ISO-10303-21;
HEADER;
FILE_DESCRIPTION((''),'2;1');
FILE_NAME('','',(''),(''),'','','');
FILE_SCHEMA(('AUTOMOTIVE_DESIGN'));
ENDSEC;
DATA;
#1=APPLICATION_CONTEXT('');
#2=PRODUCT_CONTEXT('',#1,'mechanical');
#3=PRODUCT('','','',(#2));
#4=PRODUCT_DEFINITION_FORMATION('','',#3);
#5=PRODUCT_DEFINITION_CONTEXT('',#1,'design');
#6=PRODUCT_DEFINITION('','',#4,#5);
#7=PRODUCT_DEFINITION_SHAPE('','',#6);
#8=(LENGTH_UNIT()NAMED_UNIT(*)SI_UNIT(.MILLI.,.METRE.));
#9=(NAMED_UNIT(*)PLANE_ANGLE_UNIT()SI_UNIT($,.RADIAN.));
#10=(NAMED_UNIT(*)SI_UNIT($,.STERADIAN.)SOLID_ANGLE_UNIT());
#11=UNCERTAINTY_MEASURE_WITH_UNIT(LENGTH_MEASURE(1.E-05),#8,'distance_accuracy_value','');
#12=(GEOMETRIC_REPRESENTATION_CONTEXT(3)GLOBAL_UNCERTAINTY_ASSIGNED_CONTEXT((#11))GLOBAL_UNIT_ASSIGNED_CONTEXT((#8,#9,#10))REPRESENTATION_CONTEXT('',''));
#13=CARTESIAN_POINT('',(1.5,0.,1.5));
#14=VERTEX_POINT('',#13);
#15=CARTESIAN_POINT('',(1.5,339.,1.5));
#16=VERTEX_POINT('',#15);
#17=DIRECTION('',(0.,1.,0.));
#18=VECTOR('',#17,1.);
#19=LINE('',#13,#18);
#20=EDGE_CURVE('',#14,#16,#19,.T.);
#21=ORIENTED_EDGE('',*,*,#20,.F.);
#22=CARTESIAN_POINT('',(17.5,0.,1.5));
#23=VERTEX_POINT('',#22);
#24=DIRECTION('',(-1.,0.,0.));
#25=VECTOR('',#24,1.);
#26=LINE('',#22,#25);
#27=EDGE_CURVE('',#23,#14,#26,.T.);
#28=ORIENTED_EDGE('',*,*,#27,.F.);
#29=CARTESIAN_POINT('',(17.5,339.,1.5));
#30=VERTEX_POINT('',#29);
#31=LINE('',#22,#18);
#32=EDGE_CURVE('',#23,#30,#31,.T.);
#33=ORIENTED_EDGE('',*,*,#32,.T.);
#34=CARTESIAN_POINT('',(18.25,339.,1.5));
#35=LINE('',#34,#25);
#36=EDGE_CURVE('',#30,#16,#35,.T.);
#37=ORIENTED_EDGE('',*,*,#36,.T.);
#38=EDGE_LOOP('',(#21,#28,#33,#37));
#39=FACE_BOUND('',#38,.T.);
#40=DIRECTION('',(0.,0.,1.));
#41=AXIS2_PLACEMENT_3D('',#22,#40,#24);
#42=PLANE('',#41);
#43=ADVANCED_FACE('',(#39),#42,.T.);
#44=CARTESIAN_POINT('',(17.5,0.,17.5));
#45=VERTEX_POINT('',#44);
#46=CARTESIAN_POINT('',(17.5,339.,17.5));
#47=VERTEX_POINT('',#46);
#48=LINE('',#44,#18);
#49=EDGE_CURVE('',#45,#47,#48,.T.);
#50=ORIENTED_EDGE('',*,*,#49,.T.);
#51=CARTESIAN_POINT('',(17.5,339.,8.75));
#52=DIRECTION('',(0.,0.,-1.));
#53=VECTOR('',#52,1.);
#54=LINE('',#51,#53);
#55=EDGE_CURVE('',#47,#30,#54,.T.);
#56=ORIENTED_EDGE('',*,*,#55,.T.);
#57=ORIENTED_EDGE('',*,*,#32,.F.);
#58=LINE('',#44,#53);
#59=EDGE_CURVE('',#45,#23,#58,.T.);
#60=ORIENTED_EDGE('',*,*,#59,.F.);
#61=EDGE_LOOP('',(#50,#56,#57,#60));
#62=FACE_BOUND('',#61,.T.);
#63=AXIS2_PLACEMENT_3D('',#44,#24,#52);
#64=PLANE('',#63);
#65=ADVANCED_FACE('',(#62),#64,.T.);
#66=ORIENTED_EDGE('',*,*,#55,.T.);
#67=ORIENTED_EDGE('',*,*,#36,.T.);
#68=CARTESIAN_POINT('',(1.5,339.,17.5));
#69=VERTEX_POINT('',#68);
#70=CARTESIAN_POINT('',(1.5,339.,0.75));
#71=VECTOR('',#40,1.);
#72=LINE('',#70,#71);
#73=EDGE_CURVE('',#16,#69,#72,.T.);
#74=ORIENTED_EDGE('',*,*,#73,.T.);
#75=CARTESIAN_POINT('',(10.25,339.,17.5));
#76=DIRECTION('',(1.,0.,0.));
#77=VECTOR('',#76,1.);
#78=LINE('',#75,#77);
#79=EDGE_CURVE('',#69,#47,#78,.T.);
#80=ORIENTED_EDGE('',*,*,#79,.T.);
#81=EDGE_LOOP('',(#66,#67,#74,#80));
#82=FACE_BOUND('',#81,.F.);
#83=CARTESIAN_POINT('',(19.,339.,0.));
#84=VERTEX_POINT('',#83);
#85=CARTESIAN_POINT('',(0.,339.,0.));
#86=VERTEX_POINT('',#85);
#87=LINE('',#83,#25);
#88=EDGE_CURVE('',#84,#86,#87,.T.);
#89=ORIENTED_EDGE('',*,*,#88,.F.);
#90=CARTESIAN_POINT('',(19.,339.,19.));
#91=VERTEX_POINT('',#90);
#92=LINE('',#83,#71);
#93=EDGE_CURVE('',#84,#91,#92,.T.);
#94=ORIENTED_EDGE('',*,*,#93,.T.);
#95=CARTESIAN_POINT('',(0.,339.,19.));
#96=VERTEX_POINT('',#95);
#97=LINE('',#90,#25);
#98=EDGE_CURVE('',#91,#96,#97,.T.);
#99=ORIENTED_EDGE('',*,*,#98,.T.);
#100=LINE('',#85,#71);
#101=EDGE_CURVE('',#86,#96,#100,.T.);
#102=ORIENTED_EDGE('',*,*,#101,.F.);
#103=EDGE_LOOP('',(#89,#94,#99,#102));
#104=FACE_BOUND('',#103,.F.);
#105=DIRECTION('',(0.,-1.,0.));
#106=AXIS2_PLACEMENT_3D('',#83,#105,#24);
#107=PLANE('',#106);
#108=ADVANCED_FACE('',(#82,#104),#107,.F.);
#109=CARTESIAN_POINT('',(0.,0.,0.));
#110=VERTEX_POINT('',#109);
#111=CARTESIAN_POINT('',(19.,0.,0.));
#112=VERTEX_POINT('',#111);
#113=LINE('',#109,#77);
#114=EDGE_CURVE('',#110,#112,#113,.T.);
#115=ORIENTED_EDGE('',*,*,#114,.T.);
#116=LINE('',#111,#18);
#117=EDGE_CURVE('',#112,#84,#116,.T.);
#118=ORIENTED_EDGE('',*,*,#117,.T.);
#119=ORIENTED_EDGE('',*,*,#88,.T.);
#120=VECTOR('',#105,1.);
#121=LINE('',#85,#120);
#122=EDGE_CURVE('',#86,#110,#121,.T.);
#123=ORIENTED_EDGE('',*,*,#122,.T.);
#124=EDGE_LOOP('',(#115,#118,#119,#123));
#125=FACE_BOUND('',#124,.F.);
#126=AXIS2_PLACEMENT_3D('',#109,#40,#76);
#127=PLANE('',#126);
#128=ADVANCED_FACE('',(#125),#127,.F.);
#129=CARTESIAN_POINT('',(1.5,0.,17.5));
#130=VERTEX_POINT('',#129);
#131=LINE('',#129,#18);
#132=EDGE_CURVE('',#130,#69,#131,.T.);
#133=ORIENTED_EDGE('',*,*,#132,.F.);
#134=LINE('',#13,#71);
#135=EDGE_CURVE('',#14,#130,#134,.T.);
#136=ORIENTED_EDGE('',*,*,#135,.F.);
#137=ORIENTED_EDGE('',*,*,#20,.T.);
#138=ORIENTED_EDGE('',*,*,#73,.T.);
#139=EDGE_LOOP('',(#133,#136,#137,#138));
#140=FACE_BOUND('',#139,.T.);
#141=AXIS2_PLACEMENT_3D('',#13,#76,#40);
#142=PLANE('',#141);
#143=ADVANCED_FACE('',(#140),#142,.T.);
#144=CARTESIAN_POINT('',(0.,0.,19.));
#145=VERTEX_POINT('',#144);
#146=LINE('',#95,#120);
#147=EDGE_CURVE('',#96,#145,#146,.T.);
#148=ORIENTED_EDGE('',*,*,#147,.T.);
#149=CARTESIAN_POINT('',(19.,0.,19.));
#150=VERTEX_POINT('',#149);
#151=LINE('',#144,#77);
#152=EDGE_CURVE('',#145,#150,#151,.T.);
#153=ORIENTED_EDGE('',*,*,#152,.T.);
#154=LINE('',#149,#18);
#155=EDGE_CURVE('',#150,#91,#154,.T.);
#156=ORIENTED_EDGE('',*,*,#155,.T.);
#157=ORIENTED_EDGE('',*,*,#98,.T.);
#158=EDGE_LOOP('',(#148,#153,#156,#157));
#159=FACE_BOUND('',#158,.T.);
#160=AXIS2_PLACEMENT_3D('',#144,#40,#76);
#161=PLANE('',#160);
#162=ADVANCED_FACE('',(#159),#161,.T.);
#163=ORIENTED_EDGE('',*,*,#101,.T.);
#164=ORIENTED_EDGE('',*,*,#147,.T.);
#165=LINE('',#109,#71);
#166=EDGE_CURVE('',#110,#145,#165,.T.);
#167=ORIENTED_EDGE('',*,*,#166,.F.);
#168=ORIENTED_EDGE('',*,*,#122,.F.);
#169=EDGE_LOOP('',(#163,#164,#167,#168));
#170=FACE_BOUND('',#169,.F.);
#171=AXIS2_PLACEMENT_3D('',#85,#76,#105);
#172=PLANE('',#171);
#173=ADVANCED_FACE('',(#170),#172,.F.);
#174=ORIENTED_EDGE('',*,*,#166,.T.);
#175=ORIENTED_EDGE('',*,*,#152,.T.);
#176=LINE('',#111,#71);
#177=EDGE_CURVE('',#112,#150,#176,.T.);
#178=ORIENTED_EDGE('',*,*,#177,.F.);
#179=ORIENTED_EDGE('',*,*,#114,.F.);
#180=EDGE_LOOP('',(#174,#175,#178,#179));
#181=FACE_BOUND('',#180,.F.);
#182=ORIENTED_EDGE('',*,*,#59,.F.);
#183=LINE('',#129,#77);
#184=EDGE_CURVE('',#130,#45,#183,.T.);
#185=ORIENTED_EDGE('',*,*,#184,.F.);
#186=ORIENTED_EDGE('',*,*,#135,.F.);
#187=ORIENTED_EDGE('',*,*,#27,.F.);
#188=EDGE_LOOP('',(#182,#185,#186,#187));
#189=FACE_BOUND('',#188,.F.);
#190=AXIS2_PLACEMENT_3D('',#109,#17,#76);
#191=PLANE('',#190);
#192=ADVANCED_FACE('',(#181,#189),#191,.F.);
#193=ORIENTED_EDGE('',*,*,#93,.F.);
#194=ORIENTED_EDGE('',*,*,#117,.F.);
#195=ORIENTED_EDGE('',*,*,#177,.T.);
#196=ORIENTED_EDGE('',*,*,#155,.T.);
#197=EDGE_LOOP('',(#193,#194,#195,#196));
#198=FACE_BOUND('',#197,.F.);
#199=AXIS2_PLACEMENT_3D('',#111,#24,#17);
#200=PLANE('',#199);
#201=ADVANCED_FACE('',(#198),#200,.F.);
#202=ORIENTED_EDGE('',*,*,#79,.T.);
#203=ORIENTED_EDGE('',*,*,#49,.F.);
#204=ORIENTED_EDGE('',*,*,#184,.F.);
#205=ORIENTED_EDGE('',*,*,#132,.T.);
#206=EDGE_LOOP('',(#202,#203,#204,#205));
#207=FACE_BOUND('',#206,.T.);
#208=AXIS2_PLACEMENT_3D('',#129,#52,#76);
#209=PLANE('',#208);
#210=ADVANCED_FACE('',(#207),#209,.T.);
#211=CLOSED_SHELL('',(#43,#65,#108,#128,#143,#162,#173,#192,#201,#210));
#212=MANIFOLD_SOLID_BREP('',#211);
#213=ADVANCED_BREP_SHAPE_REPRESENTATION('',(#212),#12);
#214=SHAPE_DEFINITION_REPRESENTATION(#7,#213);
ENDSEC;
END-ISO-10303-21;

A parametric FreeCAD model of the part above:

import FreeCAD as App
import Part
import Sketcher

V = App.Vector


def add_polygon(sketch, points):
    """Adds a closed chain of lines whose ends are joined by coincident constraints."""
    first, n = sketch.GeometryCount, len(points)
    for a, b in zip(points, points[1:] + points[:1]):
        sketch.addGeometry(Part.LineSegment(App.Vector(*a, 0), App.Vector(*b, 0)), False)
    for i in range(n):
        sketch.addConstraint(Sketcher.Constraint("Coincident", first + i, 2, first + (i + 1) % n, 1))

doc = App.newDocument("Part")
body = doc.addObject("PartDesign::Body", "Body")

sketch1 = body.newObject("Sketcher::SketchObject", "Sketch")
sketch1.AttachmentSupport = (doc.getObject("XY_Plane"), [""])
sketch1.MapMode = "FlatFace"
add_polygon(sketch1, [(0, 339), (0, 0), (19, 0), (19, 339)])
sketch1.addConstraint([
    Sketcher.Constraint("Vertical", 0),
    Sketcher.Constraint("Horizontal", 1),
    Sketcher.Constraint("Vertical", 2),
    Sketcher.Constraint("Horizontal", 3),
    Sketcher.Constraint("Coincident", 0, 2, -1, 1),
    Sketcher.Constraint("DistanceX", 1, 1, 1, 2, 19.0),
    Sketcher.Constraint("DistanceY", 0, 2, 0, 1, 339.0),
])
pad1 = body.newObject("PartDesign::Pad", "Pad")
pad1.Profile = sketch1
pad1.Length = 19

sketch2 = body.newObject("Sketcher::SketchObject", "Sketch001")
sketch2.AttachmentSupport = (doc.getObject("XZ_Plane"), [""])
sketch2.MapMode = "FlatFace"
add_polygon(sketch2, [(18, 2), (18, 18), (2, 18), (2, 2)])
sketch2.addConstraint([
    Sketcher.Constraint("Vertical", 0),
    Sketcher.Constraint("Horizontal", 1),
    Sketcher.Constraint("Vertical", 2),
    Sketcher.Constraint("Horizontal", 3),
    Sketcher.Constraint("Equal", 3, 0),
    Sketcher.Constraint("DistanceX", -1, 1, 1, 2, 1.5),
    Sketcher.Constraint("DistanceY", -1, 1, 2, 2, 1.5),
    Sketcher.Constraint("DistanceX", 1, 2, 1, 1, 16.0),
])
pocket1 = body.newObject("PartDesign::Pocket", "Pocket")
pocket1.Profile = sketch2
pocket1.Type = "ThroughAll"

doc.recompute()
